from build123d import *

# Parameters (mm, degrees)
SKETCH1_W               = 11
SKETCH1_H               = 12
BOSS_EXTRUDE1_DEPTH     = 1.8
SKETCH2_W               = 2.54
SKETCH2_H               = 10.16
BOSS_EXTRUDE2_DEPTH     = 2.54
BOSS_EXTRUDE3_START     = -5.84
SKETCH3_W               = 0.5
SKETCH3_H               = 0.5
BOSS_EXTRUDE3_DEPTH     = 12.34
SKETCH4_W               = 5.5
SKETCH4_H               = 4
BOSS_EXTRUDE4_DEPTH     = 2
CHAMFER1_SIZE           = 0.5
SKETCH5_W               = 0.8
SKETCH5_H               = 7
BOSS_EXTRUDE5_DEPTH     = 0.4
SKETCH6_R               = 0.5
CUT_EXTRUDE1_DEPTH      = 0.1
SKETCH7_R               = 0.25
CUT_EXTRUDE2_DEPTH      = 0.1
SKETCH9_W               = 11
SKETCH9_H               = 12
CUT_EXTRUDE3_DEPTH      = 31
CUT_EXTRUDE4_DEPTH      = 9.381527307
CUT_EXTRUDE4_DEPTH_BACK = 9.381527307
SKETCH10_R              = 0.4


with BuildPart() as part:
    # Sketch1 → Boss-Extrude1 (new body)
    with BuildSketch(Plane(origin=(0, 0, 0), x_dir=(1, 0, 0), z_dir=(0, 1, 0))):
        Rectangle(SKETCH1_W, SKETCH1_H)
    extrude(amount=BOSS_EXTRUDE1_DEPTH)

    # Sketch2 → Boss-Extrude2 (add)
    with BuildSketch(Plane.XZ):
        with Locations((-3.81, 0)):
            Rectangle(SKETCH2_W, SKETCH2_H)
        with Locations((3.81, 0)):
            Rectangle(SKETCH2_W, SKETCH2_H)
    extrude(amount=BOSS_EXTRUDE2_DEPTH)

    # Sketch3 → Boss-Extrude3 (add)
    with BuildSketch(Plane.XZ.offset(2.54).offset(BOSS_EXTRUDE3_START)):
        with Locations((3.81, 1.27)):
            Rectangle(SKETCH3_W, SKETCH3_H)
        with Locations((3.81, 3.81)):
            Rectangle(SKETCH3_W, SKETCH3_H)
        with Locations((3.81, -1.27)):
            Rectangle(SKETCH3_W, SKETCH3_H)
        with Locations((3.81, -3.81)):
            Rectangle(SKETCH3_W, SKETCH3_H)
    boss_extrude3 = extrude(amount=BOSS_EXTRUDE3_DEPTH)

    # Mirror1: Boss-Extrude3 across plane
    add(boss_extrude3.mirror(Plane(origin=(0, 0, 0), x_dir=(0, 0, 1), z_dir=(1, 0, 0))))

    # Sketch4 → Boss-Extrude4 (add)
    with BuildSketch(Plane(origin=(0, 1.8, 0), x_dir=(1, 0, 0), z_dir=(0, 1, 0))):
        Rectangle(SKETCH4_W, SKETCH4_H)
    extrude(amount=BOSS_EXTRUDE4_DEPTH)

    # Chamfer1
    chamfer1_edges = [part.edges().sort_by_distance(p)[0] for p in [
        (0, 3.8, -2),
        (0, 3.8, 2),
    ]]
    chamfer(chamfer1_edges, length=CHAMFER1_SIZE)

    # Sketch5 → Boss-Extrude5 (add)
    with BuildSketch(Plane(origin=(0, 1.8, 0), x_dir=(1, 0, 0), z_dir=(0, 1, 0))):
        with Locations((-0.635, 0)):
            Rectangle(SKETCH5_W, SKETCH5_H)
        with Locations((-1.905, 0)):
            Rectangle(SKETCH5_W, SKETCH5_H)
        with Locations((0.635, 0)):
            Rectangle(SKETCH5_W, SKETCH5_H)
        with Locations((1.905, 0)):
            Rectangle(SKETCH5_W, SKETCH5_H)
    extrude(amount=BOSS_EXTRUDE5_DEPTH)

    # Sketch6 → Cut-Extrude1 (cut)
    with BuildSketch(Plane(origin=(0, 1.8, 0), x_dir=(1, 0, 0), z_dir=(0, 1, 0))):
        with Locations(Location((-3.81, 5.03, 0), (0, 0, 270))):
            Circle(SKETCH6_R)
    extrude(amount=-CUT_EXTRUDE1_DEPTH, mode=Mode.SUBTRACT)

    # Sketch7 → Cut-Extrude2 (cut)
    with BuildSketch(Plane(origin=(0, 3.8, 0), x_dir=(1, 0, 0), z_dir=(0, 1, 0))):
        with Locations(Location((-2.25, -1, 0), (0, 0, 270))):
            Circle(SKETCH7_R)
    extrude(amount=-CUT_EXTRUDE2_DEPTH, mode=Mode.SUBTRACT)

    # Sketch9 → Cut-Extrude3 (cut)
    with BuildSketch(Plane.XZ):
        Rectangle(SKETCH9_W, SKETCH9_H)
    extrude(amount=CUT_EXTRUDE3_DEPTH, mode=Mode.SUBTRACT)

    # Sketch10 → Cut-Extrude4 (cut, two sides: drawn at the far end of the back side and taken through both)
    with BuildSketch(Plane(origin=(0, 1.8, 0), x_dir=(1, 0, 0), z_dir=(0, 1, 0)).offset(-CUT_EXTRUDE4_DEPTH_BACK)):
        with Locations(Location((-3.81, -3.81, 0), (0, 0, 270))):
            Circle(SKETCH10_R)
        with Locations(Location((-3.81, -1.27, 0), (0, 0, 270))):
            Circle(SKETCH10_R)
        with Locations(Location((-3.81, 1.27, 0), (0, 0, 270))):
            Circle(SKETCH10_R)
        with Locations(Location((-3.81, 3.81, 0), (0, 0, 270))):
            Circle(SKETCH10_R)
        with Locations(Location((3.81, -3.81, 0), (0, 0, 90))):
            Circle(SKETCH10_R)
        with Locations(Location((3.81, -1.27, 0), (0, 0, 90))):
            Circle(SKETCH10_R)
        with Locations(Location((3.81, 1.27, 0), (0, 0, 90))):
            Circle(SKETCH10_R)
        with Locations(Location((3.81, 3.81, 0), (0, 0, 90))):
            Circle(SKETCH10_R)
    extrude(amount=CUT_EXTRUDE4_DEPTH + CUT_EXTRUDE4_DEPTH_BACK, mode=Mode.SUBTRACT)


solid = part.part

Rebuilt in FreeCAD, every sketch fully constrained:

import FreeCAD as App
import Part
import Sketcher

V = App.Vector


def edges_at(feature, points):
    """Names of the edges that pass closest to the given points."""
    edges = feature.Shape.Edges
    near = lambda p: min(range(len(edges)), key=lambda i: edges[i].distToShape(Part.Vertex(*p))[0])
    return sorted({f"Edge{near(p) + 1}" for p in points})

doc = App.newDocument("Part")
body = doc.addObject("PartDesign::Body", "Body")

# Sketch on XZ plane
sketch1 = doc.addObject("Sketcher::SketchObject", "Sketch")
body.addObject(sketch1)
sketch1.AttachmentSupport = (doc.XZ_Plane, [""])
sketch1.MapMode = "FlatFace"
sketch1.addGeometry(Part.LineSegment(V(-6, -6, 0), V(-6, 6, 0)), False)
sketch1.addGeometry(Part.LineSegment(V(-6, 6, 0), V(6, 6, 0)), False)
sketch1.addGeometry(Part.LineSegment(V(6, 6, 0), V(6, -6, 0)), False)
sketch1.addGeometry(Part.LineSegment(V(6, -6, 0), V(-6, -6, 0)), False)
sketch1.addConstraint(Sketcher.Constraint("Coincident", 0, 2, 1, 1))
sketch1.addConstraint(Sketcher.Constraint("Coincident", 1, 2, 2, 1))
sketch1.addConstraint(Sketcher.Constraint("Coincident", 2, 2, 3, 1))
sketch1.addConstraint(Sketcher.Constraint("Coincident", 3, 2, 0, 1))
sketch1.addConstraint(Sketcher.Constraint("Vertical", 0))
sketch1.addConstraint(Sketcher.Constraint("Horizontal", 1))
sketch1.addConstraint(Sketcher.Constraint("Vertical", 2))
sketch1.addConstraint(Sketcher.Constraint("Horizontal", 3))
sketch1.addConstraint(Sketcher.Constraint("Symmetric", 0, 2, 2, 2, -1, 1))
sketch1.addConstraint(Sketcher.Constraint("DistanceX", 1, 1, 1, 2, 11.0))
sketch1.addConstraint(Sketcher.Constraint("DistanceY", 0, 1, 0, 2, 12.0))
pad1 = doc.addObject("PartDesign::Pad", "Pad")
body.addObject(pad1)
pad1.Profile = sketch1
pad1.Length = 1.8
pad1.Reversed = True

# Sketch on XZ plane
sketch2 = doc.addObject("Sketcher::SketchObject", "Sketch001")
body.addObject(sketch2)
sketch2.AttachmentSupport = (doc.XZ_Plane, [""])
sketch2.MapMode = "FlatFace"
sketch2.addGeometry(Part.LineSegment(V(-5.1, 5.1, 0), V(-5.1, -5.1, 0)), False)
sketch2.addGeometry(Part.LineSegment(V(-5.1, -5.1, 0), V(-2.5, -5.1, 0)), False)
sketch2.addGeometry(Part.LineSegment(V(-2.5, -5.1, 0), V(-2.5, 5.1, 0)), False)
sketch2.addGeometry(Part.LineSegment(V(-2.5, 5.1, 0), V(-5.1, 5.1, 0)), False)
sketch2.addGeometry(Part.LineSegment(V(2.5, 5.1, 0), V(2.5, -5.1, 0)), False)
sketch2.addGeometry(Part.LineSegment(V(2.5, -5.1, 0), V(5.1, -5.1, 0)), False)
sketch2.addGeometry(Part.LineSegment(V(5.1, -5.1, 0), V(5.1, 5.1, 0)), False)
sketch2.addGeometry(Part.LineSegment(V(5.1, 5.1, 0), V(2.5, 5.1, 0)), False)
sketch2.addConstraint(Sketcher.Constraint("Coincident", 0, 2, 1, 1))
sketch2.addConstraint(Sketcher.Constraint("Coincident", 1, 2, 2, 1))
sketch2.addConstraint(Sketcher.Constraint("Coincident", 2, 2, 3, 1))
sketch2.addConstraint(Sketcher.Constraint("Coincident", 3, 2, 0, 1))
sketch2.addConstraint(Sketcher.Constraint("Coincident", 4, 2, 5, 1))
sketch2.addConstraint(Sketcher.Constraint("Coincident", 5, 2, 6, 1))
sketch2.addConstraint(Sketcher.Constraint("Coincident", 6, 2, 7, 1))
sketch2.addConstraint(Sketcher.Constraint("Coincident", 7, 2, 4, 1))
sketch2.addConstraint(Sketcher.Constraint("Vertical", 0))
sketch2.addConstraint(Sketcher.Constraint("Horizontal", 1))
sketch2.addConstraint(Sketcher.Constraint("Vertical", 2))
sketch2.addConstraint(Sketcher.Constraint("Horizontal", 3))
sketch2.addConstraint(Sketcher.Constraint("Vertical", 4))
sketch2.addConstraint(Sketcher.Constraint("Horizontal", 5))
sketch2.addConstraint(Sketcher.Constraint("Vertical", 6))
sketch2.addConstraint(Sketcher.Constraint("Horizontal", 7))
sketch2.addConstraint(Sketcher.Constraint("Symmetric", 2, 2, 4, 2, -1, 1))
sketch2.addConstraint(Sketcher.Constraint("Symmetric", 0, 2, 6, 2, -1, 1))
sketch2.addConstraint(Sketcher.Constraint("Horizontal", 1, 2, 4, 2))
sketch2.addConstraint(Sketcher.Constraint("DistanceX", 1, 1, 1, 2, 2.54))
sketch2.addConstraint(Sketcher.Constraint("DistanceY", 0, 2, 0, 1, 10.16))
sketch2.addConstraint(Sketcher.Constraint("DistanceX", 0, 2, -1, 1, 5.08))
pad2 = doc.addObject("PartDesign::Pad", "Pad001")
body.addObject(pad2)
pad2.Profile = sketch2
pad2.Length = 2.54

# Sketch on XZ plane
sketch3 = doc.addObject("Sketcher::SketchObject", "Sketch002")
body.addObject(sketch3)
sketch3.AttachmentSupport = (doc.XZ_Plane, [""])
sketch3.MapMode = "FlatFace"
sketch3.AttachmentOffset = App.Placement(V(0, 0, -3.3), App.Rotation())
sketch3.addGeometry(Part.LineSegment(V(3.56, 1.52, 0), V(3.56, 1.02, 0)), False)
sketch3.addGeometry(Part.LineSegment(V(3.56, 1.02, 0), V(4.06, 1.02, 0)), False)
sketch3.addGeometry(Part.LineSegment(V(4.06, 1.02, 0), V(4.06, 1.52, 0)), False)
sketch3.addGeometry(Part.LineSegment(V(4.06, 1.52, 0), V(3.56, 1.52, 0)), False)
sketch3.addGeometry(Part.LineSegment(V(3.56, 4.06, 0), V(3.56, 3.56, 0)), False)
sketch3.addGeometry(Part.LineSegment(V(3.56, 3.56, 0), V(4.06, 3.56, 0)), False)
sketch3.addGeometry(Part.LineSegment(V(4.06, 3.56, 0), V(4.06, 4.06, 0)), False)
sketch3.addGeometry(Part.LineSegment(V(4.06, 4.06, 0), V(3.56, 4.06, 0)), False)
sketch3.addGeometry(Part.LineSegment(V(3.56, -1.02, 0), V(3.56, -1.52, 0)), False)
sketch3.addGeometry(Part.LineSegment(V(3.56, -1.52, 0), V(4.06, -1.52, 0)), False)
sketch3.addGeometry(Part.LineSegment(V(4.06, -1.52, 0), V(4.06, -1.02, 0)), False)
sketch3.addGeometry(Part.LineSegment(V(4.06, -1.02, 0), V(3.56, -1.02, 0)), False)
sketch3.addGeometry(Part.LineSegment(V(3.56, -3.56, 0), V(3.56, -4.06, 0)), False)
sketch3.addGeometry(Part.LineSegment(V(3.56, -4.06, 0), V(4.06, -4.06, 0)), False)
sketch3.addGeometry(Part.LineSegment(V(4.06, -4.06, 0), V(4.06, -3.56, 0)), False)
sketch3.addGeometry(Part.LineSegment(V(4.06, -3.56, 0), V(3.56, -3.56, 0)), False)
sketch3.addConstraint(Sketcher.Constraint("Coincident", 0, 2, 1, 1))
sketch3.addConstraint(Sketcher.Constraint("Coincident", 1, 2, 2, 1))
sketch3.addConstraint(Sketcher.Constraint("Coincident", 2, 2, 3, 1))
sketch3.addConstraint(Sketcher.Constraint("Coincident", 3, 2, 0, 1))
sketch3.addConstraint(Sketcher.Constraint("Coincident", 4, 2, 5, 1))
sketch3.addConstraint(Sketcher.Constraint("Coincident", 5, 2, 6, 1))
sketch3.addConstraint(Sketcher.Constraint("Coincident", 6, 2, 7, 1))
sketch3.addConstraint(Sketcher.Constraint("Coincident", 7, 2, 4, 1))
sketch3.addConstraint(Sketcher.Constraint("Coincident", 8, 2, 9, 1))
sketch3.addConstraint(Sketcher.Constraint("Coincident", 9, 2, 10, 1))
sketch3.addConstraint(Sketcher.Constraint("Coincident", 10, 2, 11, 1))
sketch3.addConstraint(Sketcher.Constraint("Coincident", 11, 2, 8, 1))
sketch3.addConstraint(Sketcher.Constraint("Coincident", 12, 2, 13, 1))
sketch3.addConstraint(Sketcher.Constraint("Coincident", 13, 2, 14, 1))
sketch3.addConstraint(Sketcher.Constraint("Coincident", 14, 2, 15, 1))
sketch3.addConstraint(Sketcher.Constraint("Coincident", 15, 2, 12, 1))
sketch3.addConstraint(Sketcher.Constraint("Vertical", 0))
sketch3.addConstraint(Sketcher.Constraint("Horizontal", 1))
sketch3.addConstraint(Sketcher.Constraint("Vertical", 2))
sketch3.addConstraint(Sketcher.Constraint("Horizontal", 3))
sketch3.addConstraint(Sketcher.Constraint("Vertical", 4))
sketch3.addConstraint(Sketcher.Constraint("Horizontal", 5))
sketch3.addConstraint(Sketcher.Constraint("Vertical", 6))
sketch3.addConstraint(Sketcher.Constraint("Horizontal", 7))
sketch3.addConstraint(Sketcher.Constraint("Vertical", 8))
sketch3.addConstraint(Sketcher.Constraint("Horizontal", 9))
sketch3.addConstraint(Sketcher.Constraint("Vertical", 10))
sketch3.addConstraint(Sketcher.Constraint("Horizontal", 11))
sketch3.addConstraint(Sketcher.Constraint("Vertical", 12))
sketch3.addConstraint(Sketcher.Constraint("Horizontal", 13))
sketch3.addConstraint(Sketcher.Constraint("Vertical", 14))
sketch3.addConstraint(Sketcher.Constraint("Horizontal", 15))
sketch3.addConstraint(Sketcher.Constraint("Symmetric", 3, 2, 8, 2, -1))
sketch3.addConstraint(Sketcher.Constraint("Symmetric", 1, 2, 10, 2, -1))
sketch3.addConstraint(Sketcher.Constraint("Symmetric", 7, 2, 12, 2, -1))
sketch3.addConstraint(Sketcher.Constraint("Symmetric", 5, 2, 14, 2, -1))
sketch3.addConstraint(Sketcher.Constraint("Vertical", 3, 2, 4, 2))
sketch3.addConstraint(Sketcher.Constraint("Vertical", 2, 2, 5, 2))
sketch3.addConstraint(Sketcher.Constraint("Equal", 15, 0))
sketch3.addConstraint(Sketcher.Constraint("Equal", 2, 4))
sketch3.addConstraint(Sketcher.Constraint("DistanceX", 1, 1, 1, 2, 0.5))
sketch3.addConstraint(Sketcher.Constraint("DistanceX", -1, 1, 0, 2, 3.56))
sketch3.addConstraint(Sketcher.Constraint("DistanceY", -1, 1, 0, 2, 1.02))
sketch3.addConstraint(Sketcher.Constraint("DistanceY", -1, 1, 4, 2, 3.56))
pad3 = doc.addObject("PartDesign::Pad", "Pad002")
body.addObject(pad3)
pad3.Profile = sketch3
pad3.Length = 12.34
doc.recompute()

mirrored = doc.addObject("PartDesign::Mirrored", "Mirrored")
body.addObject(mirrored)
mirrored.Originals = [pad3]
mirrored.MirrorPlane = (doc.YZ_Plane, [""])
body.Tip = mirrored

# Sketch on XZ plane
sketch4 = doc.addObject("Sketcher::SketchObject", "Sketch003")
body.addObject(sketch4)
sketch4.AttachmentSupport = (doc.XZ_Plane, [""])
sketch4.MapMode = "FlatFace"
sketch4.AttachmentOffset = App.Placement(V(0, 0, -1.8), App.Rotation())
sketch4.addGeometry(Part.LineSegment(V(-2.8, -2, 0), V(-2.8, 2, 0)), False)
sketch4.addGeometry(Part.LineSegment(V(-2.8, 2, 0), V(2.8, 2, 0)), False)
sketch4.addGeometry(Part.LineSegment(V(2.8, 2, 0), V(2.8, -2, 0)), False)
sketch4.addGeometry(Part.LineSegment(V(2.8, -2, 0), V(-2.8, -2, 0)), False)
sketch4.addConstraint(Sketcher.Constraint("Coincident", 0, 2, 1, 1))
sketch4.addConstraint(Sketcher.Constraint("Coincident", 1, 2, 2, 1))
sketch4.addConstraint(Sketcher.Constraint("Coincident", 2, 2, 3, 1))
sketch4.addConstraint(Sketcher.Constraint("Coincident", 3, 2, 0, 1))
sketch4.addConstraint(Sketcher.Constraint("Vertical", 0))
sketch4.addConstraint(Sketcher.Constraint("Horizontal", 1))
sketch4.addConstraint(Sketcher.Constraint("Vertical", 2))
sketch4.addConstraint(Sketcher.Constraint("Horizontal", 3))
sketch4.addConstraint(Sketcher.Constraint("Symmetric", 0, 2, 2, 2, -1, 1))
sketch4.addConstraint(Sketcher.Constraint("DistanceY", 0, 1, 0, 2, 4.0))
sketch4.addConstraint(Sketcher.Constraint("DistanceX", 1, 1, 1, 2, 5.5))
pad4 = doc.addObject("PartDesign::Pad", "Pad003")
body.addObject(pad4)
pad4.Profile = sketch4
pad4.Length = 2
pad4.Reversed = True
doc.recompute()

chamfer = doc.addObject("PartDesign::Chamfer", "Chamfer")
body.addObject(chamfer)
chamfer.Base = (pad4, edges_at(pad4, [(0, 3.8, -2), (0, 3.8, 2)]))
chamfer.Size = 0.5

# Sketch on XZ plane
sketch5 = doc.addObject("Sketcher::SketchObject", "Sketch004")
body.addObject(sketch5)
sketch5.AttachmentSupport = (doc.XZ_Plane, [""])
sketch5.MapMode = "FlatFace"
sketch5.AttachmentOffset = App.Placement(V(0, 0, -1.8), App.Rotation())
sketch5.addGeometry(Part.LineSegment(V(-1, -3.5, 0), V(-1, 3.5, 0)), False)
sketch5.addGeometry(Part.LineSegment(V(-1, 3.5, 0), V(-0.2, 3.5, 0)), False)
sketch5.addGeometry(Part.LineSegment(V(-0.2, 3.5, 0), V(-0.2, -3.5, 0)), False)
sketch5.addGeometry(Part.LineSegment(V(-0.2, -3.5, 0), V(-1, -3.5, 0)), False)
sketch5.addGeometry(Part.LineSegment(V(-2.3, -3.5, 0), V(-2.3, 3.5, 0)), False)
sketch5.addGeometry(Part.LineSegment(V(-2.3, 3.5, 0), V(-1.5, 3.5, 0)), False)
sketch5.addGeometry(Part.LineSegment(V(-1.5, 3.5, 0), V(-1.5, -3.5, 0)), False)
sketch5.addGeometry(Part.LineSegment(V(-1.5, -3.5, 0), V(-2.3, -3.5, 0)), False)
sketch5.addGeometry(Part.LineSegment(V(0.2, -3.5, 0), V(0.2, 3.5, 0)), False)
sketch5.addGeometry(Part.LineSegment(V(0.2, 3.5, 0), V(1, 3.5, 0)), False)
sketch5.addGeometry(Part.LineSegment(V(1, 3.5, 0), V(1, -3.5, 0)), False)
sketch5.addGeometry(Part.LineSegment(V(1, -3.5, 0), V(0.2, -3.5, 0)), False)
sketch5.addGeometry(Part.LineSegment(V(1.5, -3.5, 0), V(1.5, 3.5, 0)), False)
sketch5.addGeometry(Part.LineSegment(V(1.5, 3.5, 0), V(2.3, 3.5, 0)), False)
sketch5.addGeometry(Part.LineSegment(V(2.3, 3.5, 0), V(2.3, -3.5, 0)), False)
sketch5.addGeometry(Part.LineSegment(V(2.3, -3.5, 0), V(1.5, -3.5, 0)), False)
sketch5.addConstraint(Sketcher.Constraint("Coincident", 0, 2, 1, 1))
sketch5.addConstraint(Sketcher.Constraint("Coincident", 1, 2, 2, 1))
sketch5.addConstraint(Sketcher.Constraint("Coincident", 2, 2, 3, 1))
sketch5.addConstraint(Sketcher.Constraint("Coincident", 3, 2, 0, 1))
sketch5.addConstraint(Sketcher.Constraint("Coincident", 4, 2, 5, 1))
sketch5.addConstraint(Sketcher.Constraint("Coincident", 5, 2, 6, 1))
sketch5.addConstraint(Sketcher.Constraint("Coincident", 6, 2, 7, 1))
sketch5.addConstraint(Sketcher.Constraint("Coincident", 7, 2, 4, 1))
sketch5.addConstraint(Sketcher.Constraint("Coincident", 8, 2, 9, 1))
sketch5.addConstraint(Sketcher.Constraint("Coincident", 9, 2, 10, 1))
sketch5.addConstraint(Sketcher.Constraint("Coincident", 10, 2, 11, 1))
sketch5.addConstraint(Sketcher.Constraint("Coincident", 11, 2, 8, 1))
sketch5.addConstraint(Sketcher.Constraint("Coincident", 12, 2, 13, 1))
sketch5.addConstraint(Sketcher.Constraint("Coincident", 13, 2, 14, 1))
sketch5.addConstraint(Sketcher.Constraint("Coincident", 14, 2, 15, 1))
sketch5.addConstraint(Sketcher.Constraint("Coincident", 15, 2, 12, 1))
sketch5.addConstraint(Sketcher.Constraint("Vertical", 0))
sketch5.addConstraint(Sketcher.Constraint("Horizontal", 1))
sketch5.addConstraint(Sketcher.Constraint("Vertical", 2))
sketch5.addConstraint(Sketcher.Constraint("Horizontal", 3))
sketch5.addConstraint(Sketcher.Constraint("Vertical", 4))
sketch5.addConstraint(Sketcher.Constraint("Horizontal", 5))
sketch5.addConstraint(Sketcher.Constraint("Vertical", 6))
sketch5.addConstraint(Sketcher.Constraint("Horizontal", 7))
sketch5.addConstraint(Sketcher.Constraint("Vertical", 8))
sketch5.addConstraint(Sketcher.Constraint("Horizontal", 9))
sketch5.addConstraint(Sketcher.Constraint("Vertical", 10))
sketch5.addConstraint(Sketcher.Constraint("Horizontal", 11))
sketch5.addConstraint(Sketcher.Constraint("Vertical", 12))
sketch5.addConstraint(Sketcher.Constraint("Horizontal", 13))
sketch5.addConstraint(Sketcher.Constraint("Vertical", 14))
sketch5.addConstraint(Sketcher.Constraint("Horizontal", 15))
sketch5.addConstraint(Sketcher.Constraint("Symmetric", 2, 2, 8, 2, -1, 1))
sketch5.addConstraint(Sketcher.Constraint("Symmetric", 0, 2, 10, 2, -1, 1))
sketch5.addConstraint(Sketcher.Constraint("Symmetric", 6, 2, 12, 2, -1, 1))
sketch5.addConstraint(Sketcher.Constraint("Symmetric", 4, 2, 14, 2, -1, 1))
sketch5.addConstraint(Sketcher.Constraint("Horizontal", 1, 2, 4, 2))
sketch5.addConstraint(Sketcher.Constraint("Horizontal", 3, 2, 6, 2))
sketch5.addConstraint(Sketcher.Constraint("Horizontal", 5, 2, 8, 2))
sketch5.addConstraint(Sketcher.Constraint("Equal", 3, 5))
sketch5.addConstraint(Sketcher.Constraint("DistanceY", 0, 1, 0, 2, 7.0))
sketch5.addConstraint(Sketcher.Constraint("DistanceX", 1, 1, 1, 2, 0.8))
sketch5.addConstraint(Sketcher.Constraint("DistanceX", 4, 2, 0, 2, 1.27))
sketch5.addConstraint(Sketcher.Constraint("DistanceX", 1, 2, 8, 2, 0.47))
pad5 = doc.addObject("PartDesign::Pad", "Pad004")
body.addObject(pad5)
pad5.Profile = sketch5
pad5.Length = 0.4
pad5.Reversed = True

# Sketch on XZ plane
sketch6 = doc.addObject("Sketcher::SketchObject", "Sketch005")
body.addObject(sketch6)
sketch6.AttachmentSupport = (doc.XZ_Plane, [""])
sketch6.MapMode = "FlatFace"
sketch6.AttachmentOffset = App.Placement(V(0, 0, -1.8), App.Rotation())
sketch6.addGeometry(Part.Circle(V(-3.8, -5, 0), V(0, 0, 1), 0.5), False)
sketch6.addConstraint(Sketcher.Constraint("Diameter", 0, 1.0))
sketch6.addConstraint(Sketcher.Constraint("DistanceX", 0, 3, -1, 1, 3.81))
sketch6.addConstraint(Sketcher.Constraint("DistanceY", 0, 3, -1, 1, 5.03))
pocket1 = doc.addObject("PartDesign::Pocket", "Pocket")
body.addObject(pocket1)
pocket1.Profile = sketch6
pocket1.Length = 0.1
pocket1.Reversed = True

# Sketch on XZ plane
sketch7 = doc.addObject("Sketcher::SketchObject", "Sketch006")
body.addObject(sketch7)
sketch7.AttachmentSupport = (doc.XZ_Plane, [""])
sketch7.MapMode = "FlatFace"
sketch7.AttachmentOffset = App.Placement(V(0, 0, -3.8), App.Rotation())
sketch7.addGeometry(Part.Circle(V(-2.25, 1, 0), V(0, 0, 1), 0.25), False)
sketch7.addConstraint(Sketcher.Constraint("Diameter", 0, 0.5))
sketch7.addConstraint(Sketcher.Constraint("DistanceY", -1, 1, 0, 3, 1.0))
sketch7.addConstraint(Sketcher.Constraint("DistanceX", 0, 3, -1, 1, 2.25))
pocket2 = doc.addObject("PartDesign::Pocket", "Pocket001")
body.addObject(pocket2)
pocket2.Profile = sketch7
pocket2.Length = 0.1
pocket2.Reversed = True

# Sketch on XZ plane
sketch8 = doc.addObject("Sketcher::SketchObject", "Sketch007")
body.addObject(sketch8)
sketch8.AttachmentSupport = (doc.XZ_Plane, [""])
sketch8.MapMode = "FlatFace"
sketch8.addGeometry(Part.LineSegment(V(-6, 6, 0), V(-6, -6, 0)), False)
sketch8.addGeometry(Part.LineSegment(V(-6, -6, 0), V(6, -6, 0)), False)
sketch8.addGeometry(Part.LineSegment(V(6, -6, 0), V(6, 6, 0)), False)
sketch8.addGeometry(Part.LineSegment(V(6, 6, 0), V(-6, 6, 0)), False)
sketch8.addConstraint(Sketcher.Constraint("Coincident", 0, 2, 1, 1))
sketch8.addConstraint(Sketcher.Constraint("Coincident", 1, 2, 2, 1))
sketch8.addConstraint(Sketcher.Constraint("Coincident", 2, 2, 3, 1))
sketch8.addConstraint(Sketcher.Constraint("Coincident", 3, 2, 0, 1))
sketch8.addConstraint(Sketcher.Constraint("Vertical", 0))
sketch8.addConstraint(Sketcher.Constraint("Horizontal", 1))
sketch8.addConstraint(Sketcher.Constraint("Vertical", 2))
sketch8.addConstraint(Sketcher.Constraint("Horizontal", 3))
sketch8.addConstraint(Sketcher.Constraint("Symmetric", 0, 2, 2, 2, -1, 1))
sketch8.addConstraint(Sketcher.Constraint("DistanceX", 1, 1, 1, 2, 11.0))
sketch8.addConstraint(Sketcher.Constraint("DistanceY", 0, 2, 0, 1, 12.0))
pocket3 = doc.addObject("PartDesign::Pocket", "Pocket002")
body.addObject(pocket3)
pocket3.Profile = sketch8
pocket3.Length = 31
pocket3.Reversed = True

# Sketch on XZ plane
sketch9 = doc.addObject("Sketcher::SketchObject", "Sketch008")
body.addObject(sketch9)
sketch9.AttachmentSupport = (doc.XZ_Plane, [""])
sketch9.MapMode = "FlatFace"
sketch9.AttachmentOffset = App.Placement(V(0, 0, -1.8), App.Rotation())
sketch9.addGeometry(Part.Circle(V(-3.81, 3.81, 0), V(0, 0, 1), 0.4), False)
sketch9.addGeometry(Part.Circle(V(-3.81, 1.27, 0), V(0, 0, 1), 0.4), False)
sketch9.addGeometry(Part.Circle(V(-3.81, -1.27, 0), V(0, 0, 1), 0.4), False)
sketch9.addGeometry(Part.Circle(V(-3.81, -3.81, 0), V(0, 0, 1), 0.4), False)
sketch9.addGeometry(Part.Circle(V(3.81, 3.81, 0), V(0, 0, 1), 0.4), False)
sketch9.addGeometry(Part.Circle(V(3.81, 1.27, 0), V(0, 0, 1), 0.4), False)
sketch9.addGeometry(Part.Circle(V(3.81, -1.27, 0), V(0, 0, 1), 0.4), False)
sketch9.addGeometry(Part.Circle(V(3.81, -3.81, 0), V(0, 0, 1), 0.4), False)
sketch9.addConstraint(Sketcher.Constraint("Equal", 0, 1))
sketch9.addConstraint(Sketcher.Constraint("Equal", 1, 2))
sketch9.addConstraint(Sketcher.Constraint("Equal", 2, 3))
sketch9.addConstraint(Sketcher.Constraint("Equal", 3, 4))
sketch9.addConstraint(Sketcher.Constraint("Equal", 4, 5))
sketch9.addConstraint(Sketcher.Constraint("Equal", 5, 6))
sketch9.addConstraint(Sketcher.Constraint("Equal", 6, 7))
sketch9.addConstraint(Sketcher.Constraint("Symmetric", 3, 3, 4, 3, -1, 1))
sketch9.addConstraint(Sketcher.Constraint("Symmetric", 2, 3, 5, 3, -1, 1))
sketch9.addConstraint(Sketcher.Constraint("Symmetric", 1, 3, 6, 3, -1, 1))
sketch9.addConstraint(Sketcher.Constraint("Symmetric", 0, 3, 7, 3, -1, 1))
sketch9.addConstraint(Sketcher.Constraint("Symmetric", 0, 3, 4, 3, -2))
sketch9.addConstraint(Sketcher.Constraint("Symmetric", 1, 3, 5, 3, -2))
sketch9.addConstraint(Sketcher.Constraint("Vertical", 0, 3, 1, 3))
sketch9.addConstraint(Sketcher.Constraint("Diameter", 0, 0.8))
sketch9.addConstraint(Sketcher.Constraint("DistanceX", 0, 3, -1, 1, 3.81))
sketch9.addConstraint(Sketcher.Constraint("DistanceY", -1, 1, 0, 3, 3.81))
sketch9.addConstraint(Sketcher.Constraint("DistanceY", -1, 1, 1, 3, 1.27))
pocket4 = doc.addObject("PartDesign::Pocket", "Pocket003")
body.addObject(pocket4)
pocket4.Profile = sketch9
pocket4.Type = "ThroughAll"
pocket4.Midplane = True

doc.recompute()
